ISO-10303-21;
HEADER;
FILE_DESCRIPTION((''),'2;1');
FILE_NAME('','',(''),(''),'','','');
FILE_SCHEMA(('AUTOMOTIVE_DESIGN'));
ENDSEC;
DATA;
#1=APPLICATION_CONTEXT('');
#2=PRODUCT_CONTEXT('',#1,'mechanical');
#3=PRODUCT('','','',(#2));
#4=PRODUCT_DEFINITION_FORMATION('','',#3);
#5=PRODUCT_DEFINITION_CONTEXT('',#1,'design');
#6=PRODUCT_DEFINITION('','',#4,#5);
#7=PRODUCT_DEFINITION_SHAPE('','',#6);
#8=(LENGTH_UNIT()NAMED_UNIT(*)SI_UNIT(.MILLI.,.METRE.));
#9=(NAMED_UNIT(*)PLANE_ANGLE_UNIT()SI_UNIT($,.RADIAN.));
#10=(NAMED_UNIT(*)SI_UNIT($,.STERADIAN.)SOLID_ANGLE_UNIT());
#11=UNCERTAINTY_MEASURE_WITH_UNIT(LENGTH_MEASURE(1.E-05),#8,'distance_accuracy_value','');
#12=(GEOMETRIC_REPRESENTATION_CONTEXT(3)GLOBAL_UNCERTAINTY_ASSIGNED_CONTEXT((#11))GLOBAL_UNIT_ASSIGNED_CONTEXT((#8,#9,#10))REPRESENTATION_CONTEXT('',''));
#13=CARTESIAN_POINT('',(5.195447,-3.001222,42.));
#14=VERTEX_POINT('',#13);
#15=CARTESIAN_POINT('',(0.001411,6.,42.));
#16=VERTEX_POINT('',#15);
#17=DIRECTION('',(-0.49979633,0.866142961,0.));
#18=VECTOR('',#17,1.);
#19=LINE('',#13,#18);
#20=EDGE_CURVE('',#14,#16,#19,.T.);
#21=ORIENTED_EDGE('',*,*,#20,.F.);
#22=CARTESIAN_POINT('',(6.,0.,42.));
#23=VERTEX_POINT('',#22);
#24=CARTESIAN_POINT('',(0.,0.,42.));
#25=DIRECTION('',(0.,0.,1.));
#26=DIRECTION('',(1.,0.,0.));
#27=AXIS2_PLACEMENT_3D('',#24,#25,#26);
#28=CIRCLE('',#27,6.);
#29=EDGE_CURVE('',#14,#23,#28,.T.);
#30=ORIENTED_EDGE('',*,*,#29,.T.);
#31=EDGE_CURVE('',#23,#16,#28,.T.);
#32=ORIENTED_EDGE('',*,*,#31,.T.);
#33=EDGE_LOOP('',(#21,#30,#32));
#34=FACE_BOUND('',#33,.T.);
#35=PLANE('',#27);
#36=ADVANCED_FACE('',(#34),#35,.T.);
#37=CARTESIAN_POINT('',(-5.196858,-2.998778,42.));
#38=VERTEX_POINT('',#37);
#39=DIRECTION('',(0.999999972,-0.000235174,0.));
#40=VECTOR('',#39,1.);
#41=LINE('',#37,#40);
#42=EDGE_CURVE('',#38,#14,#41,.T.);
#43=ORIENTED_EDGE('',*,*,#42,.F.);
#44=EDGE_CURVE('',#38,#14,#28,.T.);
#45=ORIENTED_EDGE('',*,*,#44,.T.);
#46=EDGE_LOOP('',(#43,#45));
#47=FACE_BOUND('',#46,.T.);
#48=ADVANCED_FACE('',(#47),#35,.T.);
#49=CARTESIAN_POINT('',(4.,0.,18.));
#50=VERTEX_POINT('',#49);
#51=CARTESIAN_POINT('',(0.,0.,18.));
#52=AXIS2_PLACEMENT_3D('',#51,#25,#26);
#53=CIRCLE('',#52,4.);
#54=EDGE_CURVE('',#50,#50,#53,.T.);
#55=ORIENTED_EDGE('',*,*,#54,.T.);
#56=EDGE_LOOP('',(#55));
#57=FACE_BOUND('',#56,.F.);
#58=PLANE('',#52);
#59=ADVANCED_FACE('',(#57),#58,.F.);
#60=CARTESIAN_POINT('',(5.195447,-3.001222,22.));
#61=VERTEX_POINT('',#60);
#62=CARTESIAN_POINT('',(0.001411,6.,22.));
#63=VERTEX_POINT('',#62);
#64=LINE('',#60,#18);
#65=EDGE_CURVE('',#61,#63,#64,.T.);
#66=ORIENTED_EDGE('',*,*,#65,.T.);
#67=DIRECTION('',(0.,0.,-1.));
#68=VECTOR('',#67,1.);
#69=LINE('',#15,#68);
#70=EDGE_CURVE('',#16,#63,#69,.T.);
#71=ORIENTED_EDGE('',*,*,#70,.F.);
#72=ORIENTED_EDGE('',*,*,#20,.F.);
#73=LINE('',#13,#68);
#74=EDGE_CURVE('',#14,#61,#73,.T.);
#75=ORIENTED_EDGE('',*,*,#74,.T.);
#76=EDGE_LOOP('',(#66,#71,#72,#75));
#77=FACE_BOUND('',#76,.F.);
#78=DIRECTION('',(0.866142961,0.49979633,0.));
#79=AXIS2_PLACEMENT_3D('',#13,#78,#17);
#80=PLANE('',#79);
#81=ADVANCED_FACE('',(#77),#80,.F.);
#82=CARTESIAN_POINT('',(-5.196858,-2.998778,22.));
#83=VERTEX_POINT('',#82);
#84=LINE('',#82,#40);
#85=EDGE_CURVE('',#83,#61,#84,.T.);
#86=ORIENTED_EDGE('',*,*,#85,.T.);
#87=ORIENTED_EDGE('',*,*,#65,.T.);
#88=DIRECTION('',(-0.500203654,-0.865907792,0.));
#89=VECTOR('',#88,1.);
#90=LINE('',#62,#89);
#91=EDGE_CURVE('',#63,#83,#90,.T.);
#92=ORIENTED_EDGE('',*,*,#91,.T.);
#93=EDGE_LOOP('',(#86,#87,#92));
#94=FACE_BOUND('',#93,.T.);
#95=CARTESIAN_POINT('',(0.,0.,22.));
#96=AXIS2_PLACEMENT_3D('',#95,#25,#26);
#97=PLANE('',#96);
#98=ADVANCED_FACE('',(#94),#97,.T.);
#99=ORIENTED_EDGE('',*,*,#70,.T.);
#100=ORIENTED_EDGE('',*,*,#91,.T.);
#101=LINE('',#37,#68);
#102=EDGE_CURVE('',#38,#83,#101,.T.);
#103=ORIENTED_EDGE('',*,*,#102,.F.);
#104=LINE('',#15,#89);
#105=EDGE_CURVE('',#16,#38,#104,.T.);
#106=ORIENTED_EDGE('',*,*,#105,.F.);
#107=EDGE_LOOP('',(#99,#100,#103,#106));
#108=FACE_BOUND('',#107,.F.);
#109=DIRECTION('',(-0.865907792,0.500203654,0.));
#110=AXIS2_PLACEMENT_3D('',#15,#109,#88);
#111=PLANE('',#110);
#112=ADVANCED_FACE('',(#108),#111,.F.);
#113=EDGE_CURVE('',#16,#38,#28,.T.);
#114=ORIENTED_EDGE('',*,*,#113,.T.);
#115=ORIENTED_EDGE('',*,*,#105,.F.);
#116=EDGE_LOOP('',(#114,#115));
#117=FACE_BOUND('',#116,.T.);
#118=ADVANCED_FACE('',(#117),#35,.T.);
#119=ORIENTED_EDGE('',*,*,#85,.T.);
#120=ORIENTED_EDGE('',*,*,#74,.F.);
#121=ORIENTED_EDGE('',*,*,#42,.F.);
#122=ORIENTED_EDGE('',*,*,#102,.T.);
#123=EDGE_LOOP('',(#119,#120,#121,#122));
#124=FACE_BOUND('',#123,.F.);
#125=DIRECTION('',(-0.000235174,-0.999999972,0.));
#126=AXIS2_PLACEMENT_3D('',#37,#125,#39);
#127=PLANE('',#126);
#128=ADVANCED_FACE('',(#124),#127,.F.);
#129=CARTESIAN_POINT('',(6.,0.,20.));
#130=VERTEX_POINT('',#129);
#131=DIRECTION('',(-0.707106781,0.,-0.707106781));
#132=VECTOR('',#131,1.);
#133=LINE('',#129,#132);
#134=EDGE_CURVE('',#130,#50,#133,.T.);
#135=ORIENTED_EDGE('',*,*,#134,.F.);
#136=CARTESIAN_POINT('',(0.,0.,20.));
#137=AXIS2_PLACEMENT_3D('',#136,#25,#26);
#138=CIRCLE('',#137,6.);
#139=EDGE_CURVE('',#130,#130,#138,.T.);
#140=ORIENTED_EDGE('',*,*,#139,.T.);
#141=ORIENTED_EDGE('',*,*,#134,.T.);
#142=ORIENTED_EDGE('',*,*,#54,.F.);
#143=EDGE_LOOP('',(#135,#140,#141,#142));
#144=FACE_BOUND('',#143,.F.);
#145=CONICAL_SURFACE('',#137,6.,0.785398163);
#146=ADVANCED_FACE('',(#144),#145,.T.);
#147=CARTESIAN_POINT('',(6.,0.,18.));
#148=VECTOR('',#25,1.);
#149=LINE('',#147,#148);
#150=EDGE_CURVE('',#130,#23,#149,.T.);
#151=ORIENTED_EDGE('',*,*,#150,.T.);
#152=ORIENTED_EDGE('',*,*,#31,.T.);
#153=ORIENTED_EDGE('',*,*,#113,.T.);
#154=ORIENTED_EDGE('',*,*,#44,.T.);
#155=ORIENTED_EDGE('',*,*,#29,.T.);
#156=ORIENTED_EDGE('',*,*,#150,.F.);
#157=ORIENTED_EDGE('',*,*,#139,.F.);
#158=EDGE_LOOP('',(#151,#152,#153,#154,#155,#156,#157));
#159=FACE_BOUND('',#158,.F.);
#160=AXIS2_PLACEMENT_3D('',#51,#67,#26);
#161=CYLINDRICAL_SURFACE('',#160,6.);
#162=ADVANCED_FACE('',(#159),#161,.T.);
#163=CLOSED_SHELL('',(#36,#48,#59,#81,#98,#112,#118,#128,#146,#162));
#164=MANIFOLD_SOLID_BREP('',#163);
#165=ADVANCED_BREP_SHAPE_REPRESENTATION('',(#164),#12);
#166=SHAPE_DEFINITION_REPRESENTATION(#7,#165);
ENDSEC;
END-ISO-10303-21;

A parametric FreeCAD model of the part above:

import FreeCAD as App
import Part
import Sketcher

V = App.Vector


def edges_at(feature, points):
    """Names of the edges that pass closest to the given points."""
    edges = feature.Shape.Edges
    near = lambda p: min(range(len(edges)), key=lambda i: edges[i].distToShape(Part.Vertex(*p))[0])
    return sorted({f"Edge{near(p) + 1}" for p in points})

doc = App.newDocument("Part")
params = doc.addObject("Spreadsheet::Sheet", "Params")
for row, (alias, value) in enumerate([
    ("sketch1_diameter", "12 mm"),
    ("pad1_length", "24 mm"),
    ("pocket1_length", "20 mm"),
    ("chamfer_size", "2 mm"),
], start=1):
    params.set(f"A{row}", alias)
    params.set(f"B{row}", "=" + value)
    params.setAlias(f"B{row}", alias)

body = doc.addObject("PartDesign::Body", "Body")

# Sketch on XY plane
sketch1 = body.newObject("Sketcher::SketchObject", "Sketch")
sketch1.AttachmentSupport = (doc.getObject("XY_Plane"), [""])
sketch1.MapMode = "FlatFace"
sketch1.AttachmentOffset = App.Placement(V(0, 0, 18), App.Rotation())
sketch1.addGeometry(Part.Circle(V(0, 0, 0), V(0, 0, 1), 6), False)
sketch1.addConstraint([
    Sketcher.Constraint("Coincident", 0, 3, -1, 1),
    Sketcher.Constraint("Diameter", 0, 12.0),
])
sketch1.setExpression("Constraints[1]", "Params.sketch1_diameter")
pad1 = body.newObject("PartDesign::Pad", "Pad")
pad1.Profile = sketch1
pad1.setExpression("Length", "Params.pad1_length")

# Sketch on XY plane
sketch2 = body.newObject("Sketcher::SketchObject", "Sketch001")
sketch2.AttachmentSupport = (doc.getObject("XY_Plane"), [""])
sketch2.MapMode = "FlatFace"
sketch2.AttachmentOffset = App.Placement(V(0, 0, 42), App.Rotation())
sketch2.addGeometry([
    Part.LineSegment(V(5, -3, 0), V(0, 6, 0)),
    Part.LineSegment(V(0, 6, 0), V(-5, -3, 0)),
    Part.LineSegment(V(-5, -3, 0), V(5, -3, 0)),
], False)
sketch2.addConstraint([
    Sketcher.Constraint("Coincident", 0, 2, 1, 1),
    Sketcher.Constraint("Coincident", 1, 2, 2, 1),
    Sketcher.Constraint("Coincident", 2, 2, 0, 1),
    Sketcher.Constraint("Equal", 0, 1),
    Sketcher.Constraint("Equal", 1, 2),
    Sketcher.Constraint("DistanceY", -1, 1, 0, 2, 6.0),
    Sketcher.Constraint("DistanceX", -1, 1, 0, 2, 0.001411),
    Sketcher.Constraint("DistanceY", 1, 2, -1, 1, 2.998778),
    Sketcher.Constraint("DistanceY", 2, 2, -1, 1, 3.001222),
])
pocket1 = body.newObject("PartDesign::Pocket", "Pocket")
pocket1.Profile = sketch2
pocket1.setExpression("Length", "Params.pocket1_length")
doc.recompute()

chamfer = body.newObject("PartDesign::Chamfer", "Chamfer")
chamfer.Base = (pocket1, edges_at(pocket1, [(-6, 0, 18)]))
chamfer.setExpression("Size", "Params.chamfer_size")

doc.recompute()
